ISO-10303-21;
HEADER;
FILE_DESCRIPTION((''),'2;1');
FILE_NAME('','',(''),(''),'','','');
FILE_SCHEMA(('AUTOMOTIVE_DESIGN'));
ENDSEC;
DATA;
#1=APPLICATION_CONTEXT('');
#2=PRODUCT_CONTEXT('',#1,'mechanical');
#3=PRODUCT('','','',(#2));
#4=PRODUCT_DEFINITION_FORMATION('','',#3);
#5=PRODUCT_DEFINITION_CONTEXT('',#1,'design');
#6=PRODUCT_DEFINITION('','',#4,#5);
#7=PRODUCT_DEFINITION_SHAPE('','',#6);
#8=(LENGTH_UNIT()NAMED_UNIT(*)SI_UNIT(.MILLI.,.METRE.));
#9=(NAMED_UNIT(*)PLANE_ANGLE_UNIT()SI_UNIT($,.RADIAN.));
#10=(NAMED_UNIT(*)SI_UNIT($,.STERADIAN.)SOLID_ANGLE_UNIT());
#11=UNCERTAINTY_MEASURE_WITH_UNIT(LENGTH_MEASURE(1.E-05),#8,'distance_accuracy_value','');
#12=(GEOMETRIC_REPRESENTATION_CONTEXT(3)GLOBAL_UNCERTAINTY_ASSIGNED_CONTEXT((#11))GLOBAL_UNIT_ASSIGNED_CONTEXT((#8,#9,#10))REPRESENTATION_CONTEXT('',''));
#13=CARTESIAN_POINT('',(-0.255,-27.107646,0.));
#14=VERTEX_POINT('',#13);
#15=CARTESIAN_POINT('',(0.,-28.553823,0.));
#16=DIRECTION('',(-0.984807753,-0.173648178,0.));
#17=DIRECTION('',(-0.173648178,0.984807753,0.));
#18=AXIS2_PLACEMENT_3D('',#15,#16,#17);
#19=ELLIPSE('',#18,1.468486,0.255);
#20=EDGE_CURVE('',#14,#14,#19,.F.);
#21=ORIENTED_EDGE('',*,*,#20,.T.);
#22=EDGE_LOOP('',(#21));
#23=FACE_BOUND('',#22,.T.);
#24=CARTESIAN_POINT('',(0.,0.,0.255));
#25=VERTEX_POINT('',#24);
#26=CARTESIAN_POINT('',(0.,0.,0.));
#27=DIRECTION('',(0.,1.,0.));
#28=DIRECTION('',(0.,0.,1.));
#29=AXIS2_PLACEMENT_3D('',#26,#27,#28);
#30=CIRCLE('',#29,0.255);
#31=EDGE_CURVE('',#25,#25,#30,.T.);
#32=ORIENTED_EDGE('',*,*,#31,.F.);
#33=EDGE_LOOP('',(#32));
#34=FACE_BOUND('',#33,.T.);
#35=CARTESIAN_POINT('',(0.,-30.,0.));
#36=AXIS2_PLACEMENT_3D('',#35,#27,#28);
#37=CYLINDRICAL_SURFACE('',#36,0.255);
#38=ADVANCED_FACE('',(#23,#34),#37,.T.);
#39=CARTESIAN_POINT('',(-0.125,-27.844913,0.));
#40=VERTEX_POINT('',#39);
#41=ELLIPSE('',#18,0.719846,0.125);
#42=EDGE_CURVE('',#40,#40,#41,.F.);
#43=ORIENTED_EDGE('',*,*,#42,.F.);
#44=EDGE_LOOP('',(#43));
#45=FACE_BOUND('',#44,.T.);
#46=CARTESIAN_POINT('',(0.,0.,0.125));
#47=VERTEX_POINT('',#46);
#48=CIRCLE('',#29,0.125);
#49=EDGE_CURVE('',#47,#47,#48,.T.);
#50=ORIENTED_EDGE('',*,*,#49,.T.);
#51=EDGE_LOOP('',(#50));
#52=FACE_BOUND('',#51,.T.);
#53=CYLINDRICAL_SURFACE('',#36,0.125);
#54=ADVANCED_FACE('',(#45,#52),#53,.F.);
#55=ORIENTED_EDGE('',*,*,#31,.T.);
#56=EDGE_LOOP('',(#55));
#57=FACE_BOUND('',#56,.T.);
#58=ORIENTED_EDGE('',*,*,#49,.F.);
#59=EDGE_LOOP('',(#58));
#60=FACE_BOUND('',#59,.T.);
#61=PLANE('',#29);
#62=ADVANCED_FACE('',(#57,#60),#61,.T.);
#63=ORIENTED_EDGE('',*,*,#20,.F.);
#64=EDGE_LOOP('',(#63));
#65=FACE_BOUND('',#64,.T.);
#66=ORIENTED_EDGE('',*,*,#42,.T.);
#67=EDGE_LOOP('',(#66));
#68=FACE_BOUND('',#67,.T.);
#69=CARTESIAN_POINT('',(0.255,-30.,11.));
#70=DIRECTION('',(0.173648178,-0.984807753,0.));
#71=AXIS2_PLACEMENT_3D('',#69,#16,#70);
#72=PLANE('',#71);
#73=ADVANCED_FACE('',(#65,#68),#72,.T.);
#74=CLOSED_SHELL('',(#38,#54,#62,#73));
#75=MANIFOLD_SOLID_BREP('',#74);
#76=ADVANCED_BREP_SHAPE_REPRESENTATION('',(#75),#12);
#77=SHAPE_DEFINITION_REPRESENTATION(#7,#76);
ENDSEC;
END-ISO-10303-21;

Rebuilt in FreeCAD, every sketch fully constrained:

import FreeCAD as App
import Part
import Sketcher
from FreeCAD import Vector
Q = App.Units.Quantity


def add_polygon(sketch, points):
    """Adds a closed chain of lines whose ends are joined by coincident constraints."""
    first, n = sketch.GeometryCount, len(points)
    for a, b in zip(points, points[1:] + points[:1]):
        sketch.addGeometry(Part.LineSegment(App.Vector(*a, 0), App.Vector(*b, 0)), False)
    for i in range(n):
        sketch.addConstraint(Sketcher.Constraint("Coincident", first + i, 2, first + (i + 1) % n, 1))

doc = App.newDocument("Part")
body = doc.addObject("PartDesign::Body", "Body")

sketch1 = doc.addObject("Sketcher::SketchObject", "Sketch")
body.addObject(sketch1)
sketch1.AttachmentSupport = (doc.XZ_Plane, [""])
sketch1.MapMode = "FlatFace"
sketch1.addGeometry(Part.Circle(Vector(0, 0, 0), Vector(0, 0, 1), 0.255), False)
sketch1.addGeometry(Part.Circle(Vector(0, 0, 0), Vector(0, 0, 1), 0.125), False)
sketch1.addConstraint(Sketcher.Constraint("Coincident", 0, 3, -1, 1))
sketch1.addConstraint(Sketcher.Constraint("Coincident", 1, 3, -1, 1))
sketch1.addConstraint(Sketcher.Constraint("Diameter", 0, 0.51))
sketch1.addConstraint(Sketcher.Constraint("Diameter", 1, 0.25))
pad1 = doc.addObject("PartDesign::Pad", "Pad")
body.addObject(pad1)
pad1.Profile = sketch1
pad1.Length = 30

sketch2 = doc.addObject("Sketcher::SketchObject", "Sketch001")
body.addObject(sketch2)
sketch2.AttachmentSupport = (doc.XY_Plane, [""])
sketch2.MapMode = "FlatFace"
add_polygon(sketch2, [(8.020684, -74.041384), (0.255, -30), (-0.296001, -26.875118), (-0.296001, -80.940382), (8.020684, -80.940382)])
sketch2.addConstraint(Sketcher.Constraint("Vertical", 2))
sketch2.addConstraint(Sketcher.Constraint("Horizontal", 3))
sketch2.addConstraint(Sketcher.Constraint("Vertical", 4))
sketch2.addConstraint(Sketcher.Constraint("Parallel", 0, 1))
sketch2.addConstraint(Sketcher.Constraint("Angle", 0, Q("100 deg")))
sketch2.addConstraint(Sketcher.Constraint("DistanceY", 0, 2, -1, 1, 30.0))
sketch2.addConstraint(Sketcher.Constraint("DistanceX", -1, 1, 0, 2, 0.255))
sketch2.addConstraint(Sketcher.Constraint("DistanceX", 1, 2, -1, 1, 0.296001))
sketch2.addConstraint(Sketcher.Constraint("DistanceX", 3, 1, 3, 2, 8.316685))
sketch2.addConstraint(Sketcher.Constraint("DistanceY", 2, 2, 2, 1, 54.065264))
pocket1 = doc.addObject("PartDesign::Pocket", "Pocket")
body.addObject(pocket1)
pocket1.Profile = sketch2
pocket1.Type = "ThroughAll"
pocket1.Midplane = True

doc.recompute()
